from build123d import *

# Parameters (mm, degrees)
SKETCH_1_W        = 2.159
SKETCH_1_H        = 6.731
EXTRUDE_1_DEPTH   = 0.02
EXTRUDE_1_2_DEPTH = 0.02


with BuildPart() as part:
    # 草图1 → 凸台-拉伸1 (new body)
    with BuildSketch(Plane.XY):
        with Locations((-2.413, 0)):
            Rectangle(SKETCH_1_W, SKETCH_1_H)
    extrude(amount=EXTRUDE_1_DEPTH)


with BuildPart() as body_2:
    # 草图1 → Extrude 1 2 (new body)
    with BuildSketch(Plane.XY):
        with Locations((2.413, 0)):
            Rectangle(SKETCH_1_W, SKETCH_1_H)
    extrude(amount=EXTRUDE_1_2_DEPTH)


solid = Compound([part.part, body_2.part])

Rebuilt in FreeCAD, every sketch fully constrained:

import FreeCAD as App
import Part
import Sketcher

V = App.Vector
Q = App.Units.Quantity


def add_polygon(sketch, points):
    """Adds a closed chain of lines whose ends are joined by coincident constraints."""
    first, n = sketch.GeometryCount, len(points)
    for a, b in zip(points, points[1:] + points[:1]):
        sketch.addGeometry(Part.LineSegment(App.Vector(*a, 0), App.Vector(*b, 0)), False)
    for i in range(n):
        sketch.addConstraint(Sketcher.Constraint("Coincident", first + i, 2, first + (i + 1) % n, 1))

doc = App.newDocument("Part")
body = doc.addObject("PartDesign::Body", "Body")

# Sketch on XY plane
sketch1 = body.newObject("Sketcher::SketchObject", "Sketch")
sketch1.AttachmentSupport = (doc.getObject("XY_Plane"), [""])
sketch1.MapMode = "FlatFace"
add_polygon(sketch1, [(-3.5, 3.4), (-3.5, -3.4), (-1.3, -3.4), (-1.3, 3.4)])  # lines 0-3
sketch1.addConstraint([
    Sketcher.Constraint("Vertical", 0),
    Sketcher.Constraint("Horizontal", 1),
    Sketcher.Constraint("Vertical", 2),
    Sketcher.Constraint("Horizontal", 3),
    Sketcher.Constraint("DistanceX", 1, 1, 1, 2, Q("0.085 in")),
    Sketcher.Constraint("DistanceY", 0, 2, 0, 1, Q("0.265 in")),
    Sketcher.Constraint("DistanceX", 0, 2, -1, 1, Q("0.1375 in")),
    Sketcher.Constraint("DistanceY", 0, 2, -1, 1, Q("0.1325 in")),
])
pad1 = body.newObject("PartDesign::Pad", "Pad")
pad1.Profile = sketch1
pad1.Length = 0.02
body2 = doc.addObject("PartDesign::Body", "Body001")

# Sketch on XY plane
sketch2 = body2.newObject("Sketcher::SketchObject", "Sketch001")
sketch2.AttachmentSupport = (doc.getObject("XY_Plane001"), [""])
sketch2.MapMode = "FlatFace"
add_polygon(sketch2, [(1.3, 3.4), (1.3, -3.4), (3.5, -3.4), (3.5, 3.4)])  # lines 0-3
sketch2.addConstraint([
    Sketcher.Constraint("Vertical", 0),
    Sketcher.Constraint("Horizontal", 1),
    Sketcher.Constraint("Vertical", 2),
    Sketcher.Constraint("Horizontal", 3),
    Sketcher.Constraint("DistanceX", 1, 1, 1, 2, Q("0.085 in")),
    Sketcher.Constraint("DistanceY", 0, 2, 0, 1, Q("0.265 in")),
    Sketcher.Constraint("DistanceX", -1, 1, 0, 2, Q("0.0525 in")),
    Sketcher.Constraint("DistanceY", 0, 2, -1, 1, Q("0.1325 in")),
])
pad2 = body2.newObject("PartDesign::Pad", "Pad001")
pad2.Profile = sketch2
pad2.Length = 0.02

doc.recompute()
